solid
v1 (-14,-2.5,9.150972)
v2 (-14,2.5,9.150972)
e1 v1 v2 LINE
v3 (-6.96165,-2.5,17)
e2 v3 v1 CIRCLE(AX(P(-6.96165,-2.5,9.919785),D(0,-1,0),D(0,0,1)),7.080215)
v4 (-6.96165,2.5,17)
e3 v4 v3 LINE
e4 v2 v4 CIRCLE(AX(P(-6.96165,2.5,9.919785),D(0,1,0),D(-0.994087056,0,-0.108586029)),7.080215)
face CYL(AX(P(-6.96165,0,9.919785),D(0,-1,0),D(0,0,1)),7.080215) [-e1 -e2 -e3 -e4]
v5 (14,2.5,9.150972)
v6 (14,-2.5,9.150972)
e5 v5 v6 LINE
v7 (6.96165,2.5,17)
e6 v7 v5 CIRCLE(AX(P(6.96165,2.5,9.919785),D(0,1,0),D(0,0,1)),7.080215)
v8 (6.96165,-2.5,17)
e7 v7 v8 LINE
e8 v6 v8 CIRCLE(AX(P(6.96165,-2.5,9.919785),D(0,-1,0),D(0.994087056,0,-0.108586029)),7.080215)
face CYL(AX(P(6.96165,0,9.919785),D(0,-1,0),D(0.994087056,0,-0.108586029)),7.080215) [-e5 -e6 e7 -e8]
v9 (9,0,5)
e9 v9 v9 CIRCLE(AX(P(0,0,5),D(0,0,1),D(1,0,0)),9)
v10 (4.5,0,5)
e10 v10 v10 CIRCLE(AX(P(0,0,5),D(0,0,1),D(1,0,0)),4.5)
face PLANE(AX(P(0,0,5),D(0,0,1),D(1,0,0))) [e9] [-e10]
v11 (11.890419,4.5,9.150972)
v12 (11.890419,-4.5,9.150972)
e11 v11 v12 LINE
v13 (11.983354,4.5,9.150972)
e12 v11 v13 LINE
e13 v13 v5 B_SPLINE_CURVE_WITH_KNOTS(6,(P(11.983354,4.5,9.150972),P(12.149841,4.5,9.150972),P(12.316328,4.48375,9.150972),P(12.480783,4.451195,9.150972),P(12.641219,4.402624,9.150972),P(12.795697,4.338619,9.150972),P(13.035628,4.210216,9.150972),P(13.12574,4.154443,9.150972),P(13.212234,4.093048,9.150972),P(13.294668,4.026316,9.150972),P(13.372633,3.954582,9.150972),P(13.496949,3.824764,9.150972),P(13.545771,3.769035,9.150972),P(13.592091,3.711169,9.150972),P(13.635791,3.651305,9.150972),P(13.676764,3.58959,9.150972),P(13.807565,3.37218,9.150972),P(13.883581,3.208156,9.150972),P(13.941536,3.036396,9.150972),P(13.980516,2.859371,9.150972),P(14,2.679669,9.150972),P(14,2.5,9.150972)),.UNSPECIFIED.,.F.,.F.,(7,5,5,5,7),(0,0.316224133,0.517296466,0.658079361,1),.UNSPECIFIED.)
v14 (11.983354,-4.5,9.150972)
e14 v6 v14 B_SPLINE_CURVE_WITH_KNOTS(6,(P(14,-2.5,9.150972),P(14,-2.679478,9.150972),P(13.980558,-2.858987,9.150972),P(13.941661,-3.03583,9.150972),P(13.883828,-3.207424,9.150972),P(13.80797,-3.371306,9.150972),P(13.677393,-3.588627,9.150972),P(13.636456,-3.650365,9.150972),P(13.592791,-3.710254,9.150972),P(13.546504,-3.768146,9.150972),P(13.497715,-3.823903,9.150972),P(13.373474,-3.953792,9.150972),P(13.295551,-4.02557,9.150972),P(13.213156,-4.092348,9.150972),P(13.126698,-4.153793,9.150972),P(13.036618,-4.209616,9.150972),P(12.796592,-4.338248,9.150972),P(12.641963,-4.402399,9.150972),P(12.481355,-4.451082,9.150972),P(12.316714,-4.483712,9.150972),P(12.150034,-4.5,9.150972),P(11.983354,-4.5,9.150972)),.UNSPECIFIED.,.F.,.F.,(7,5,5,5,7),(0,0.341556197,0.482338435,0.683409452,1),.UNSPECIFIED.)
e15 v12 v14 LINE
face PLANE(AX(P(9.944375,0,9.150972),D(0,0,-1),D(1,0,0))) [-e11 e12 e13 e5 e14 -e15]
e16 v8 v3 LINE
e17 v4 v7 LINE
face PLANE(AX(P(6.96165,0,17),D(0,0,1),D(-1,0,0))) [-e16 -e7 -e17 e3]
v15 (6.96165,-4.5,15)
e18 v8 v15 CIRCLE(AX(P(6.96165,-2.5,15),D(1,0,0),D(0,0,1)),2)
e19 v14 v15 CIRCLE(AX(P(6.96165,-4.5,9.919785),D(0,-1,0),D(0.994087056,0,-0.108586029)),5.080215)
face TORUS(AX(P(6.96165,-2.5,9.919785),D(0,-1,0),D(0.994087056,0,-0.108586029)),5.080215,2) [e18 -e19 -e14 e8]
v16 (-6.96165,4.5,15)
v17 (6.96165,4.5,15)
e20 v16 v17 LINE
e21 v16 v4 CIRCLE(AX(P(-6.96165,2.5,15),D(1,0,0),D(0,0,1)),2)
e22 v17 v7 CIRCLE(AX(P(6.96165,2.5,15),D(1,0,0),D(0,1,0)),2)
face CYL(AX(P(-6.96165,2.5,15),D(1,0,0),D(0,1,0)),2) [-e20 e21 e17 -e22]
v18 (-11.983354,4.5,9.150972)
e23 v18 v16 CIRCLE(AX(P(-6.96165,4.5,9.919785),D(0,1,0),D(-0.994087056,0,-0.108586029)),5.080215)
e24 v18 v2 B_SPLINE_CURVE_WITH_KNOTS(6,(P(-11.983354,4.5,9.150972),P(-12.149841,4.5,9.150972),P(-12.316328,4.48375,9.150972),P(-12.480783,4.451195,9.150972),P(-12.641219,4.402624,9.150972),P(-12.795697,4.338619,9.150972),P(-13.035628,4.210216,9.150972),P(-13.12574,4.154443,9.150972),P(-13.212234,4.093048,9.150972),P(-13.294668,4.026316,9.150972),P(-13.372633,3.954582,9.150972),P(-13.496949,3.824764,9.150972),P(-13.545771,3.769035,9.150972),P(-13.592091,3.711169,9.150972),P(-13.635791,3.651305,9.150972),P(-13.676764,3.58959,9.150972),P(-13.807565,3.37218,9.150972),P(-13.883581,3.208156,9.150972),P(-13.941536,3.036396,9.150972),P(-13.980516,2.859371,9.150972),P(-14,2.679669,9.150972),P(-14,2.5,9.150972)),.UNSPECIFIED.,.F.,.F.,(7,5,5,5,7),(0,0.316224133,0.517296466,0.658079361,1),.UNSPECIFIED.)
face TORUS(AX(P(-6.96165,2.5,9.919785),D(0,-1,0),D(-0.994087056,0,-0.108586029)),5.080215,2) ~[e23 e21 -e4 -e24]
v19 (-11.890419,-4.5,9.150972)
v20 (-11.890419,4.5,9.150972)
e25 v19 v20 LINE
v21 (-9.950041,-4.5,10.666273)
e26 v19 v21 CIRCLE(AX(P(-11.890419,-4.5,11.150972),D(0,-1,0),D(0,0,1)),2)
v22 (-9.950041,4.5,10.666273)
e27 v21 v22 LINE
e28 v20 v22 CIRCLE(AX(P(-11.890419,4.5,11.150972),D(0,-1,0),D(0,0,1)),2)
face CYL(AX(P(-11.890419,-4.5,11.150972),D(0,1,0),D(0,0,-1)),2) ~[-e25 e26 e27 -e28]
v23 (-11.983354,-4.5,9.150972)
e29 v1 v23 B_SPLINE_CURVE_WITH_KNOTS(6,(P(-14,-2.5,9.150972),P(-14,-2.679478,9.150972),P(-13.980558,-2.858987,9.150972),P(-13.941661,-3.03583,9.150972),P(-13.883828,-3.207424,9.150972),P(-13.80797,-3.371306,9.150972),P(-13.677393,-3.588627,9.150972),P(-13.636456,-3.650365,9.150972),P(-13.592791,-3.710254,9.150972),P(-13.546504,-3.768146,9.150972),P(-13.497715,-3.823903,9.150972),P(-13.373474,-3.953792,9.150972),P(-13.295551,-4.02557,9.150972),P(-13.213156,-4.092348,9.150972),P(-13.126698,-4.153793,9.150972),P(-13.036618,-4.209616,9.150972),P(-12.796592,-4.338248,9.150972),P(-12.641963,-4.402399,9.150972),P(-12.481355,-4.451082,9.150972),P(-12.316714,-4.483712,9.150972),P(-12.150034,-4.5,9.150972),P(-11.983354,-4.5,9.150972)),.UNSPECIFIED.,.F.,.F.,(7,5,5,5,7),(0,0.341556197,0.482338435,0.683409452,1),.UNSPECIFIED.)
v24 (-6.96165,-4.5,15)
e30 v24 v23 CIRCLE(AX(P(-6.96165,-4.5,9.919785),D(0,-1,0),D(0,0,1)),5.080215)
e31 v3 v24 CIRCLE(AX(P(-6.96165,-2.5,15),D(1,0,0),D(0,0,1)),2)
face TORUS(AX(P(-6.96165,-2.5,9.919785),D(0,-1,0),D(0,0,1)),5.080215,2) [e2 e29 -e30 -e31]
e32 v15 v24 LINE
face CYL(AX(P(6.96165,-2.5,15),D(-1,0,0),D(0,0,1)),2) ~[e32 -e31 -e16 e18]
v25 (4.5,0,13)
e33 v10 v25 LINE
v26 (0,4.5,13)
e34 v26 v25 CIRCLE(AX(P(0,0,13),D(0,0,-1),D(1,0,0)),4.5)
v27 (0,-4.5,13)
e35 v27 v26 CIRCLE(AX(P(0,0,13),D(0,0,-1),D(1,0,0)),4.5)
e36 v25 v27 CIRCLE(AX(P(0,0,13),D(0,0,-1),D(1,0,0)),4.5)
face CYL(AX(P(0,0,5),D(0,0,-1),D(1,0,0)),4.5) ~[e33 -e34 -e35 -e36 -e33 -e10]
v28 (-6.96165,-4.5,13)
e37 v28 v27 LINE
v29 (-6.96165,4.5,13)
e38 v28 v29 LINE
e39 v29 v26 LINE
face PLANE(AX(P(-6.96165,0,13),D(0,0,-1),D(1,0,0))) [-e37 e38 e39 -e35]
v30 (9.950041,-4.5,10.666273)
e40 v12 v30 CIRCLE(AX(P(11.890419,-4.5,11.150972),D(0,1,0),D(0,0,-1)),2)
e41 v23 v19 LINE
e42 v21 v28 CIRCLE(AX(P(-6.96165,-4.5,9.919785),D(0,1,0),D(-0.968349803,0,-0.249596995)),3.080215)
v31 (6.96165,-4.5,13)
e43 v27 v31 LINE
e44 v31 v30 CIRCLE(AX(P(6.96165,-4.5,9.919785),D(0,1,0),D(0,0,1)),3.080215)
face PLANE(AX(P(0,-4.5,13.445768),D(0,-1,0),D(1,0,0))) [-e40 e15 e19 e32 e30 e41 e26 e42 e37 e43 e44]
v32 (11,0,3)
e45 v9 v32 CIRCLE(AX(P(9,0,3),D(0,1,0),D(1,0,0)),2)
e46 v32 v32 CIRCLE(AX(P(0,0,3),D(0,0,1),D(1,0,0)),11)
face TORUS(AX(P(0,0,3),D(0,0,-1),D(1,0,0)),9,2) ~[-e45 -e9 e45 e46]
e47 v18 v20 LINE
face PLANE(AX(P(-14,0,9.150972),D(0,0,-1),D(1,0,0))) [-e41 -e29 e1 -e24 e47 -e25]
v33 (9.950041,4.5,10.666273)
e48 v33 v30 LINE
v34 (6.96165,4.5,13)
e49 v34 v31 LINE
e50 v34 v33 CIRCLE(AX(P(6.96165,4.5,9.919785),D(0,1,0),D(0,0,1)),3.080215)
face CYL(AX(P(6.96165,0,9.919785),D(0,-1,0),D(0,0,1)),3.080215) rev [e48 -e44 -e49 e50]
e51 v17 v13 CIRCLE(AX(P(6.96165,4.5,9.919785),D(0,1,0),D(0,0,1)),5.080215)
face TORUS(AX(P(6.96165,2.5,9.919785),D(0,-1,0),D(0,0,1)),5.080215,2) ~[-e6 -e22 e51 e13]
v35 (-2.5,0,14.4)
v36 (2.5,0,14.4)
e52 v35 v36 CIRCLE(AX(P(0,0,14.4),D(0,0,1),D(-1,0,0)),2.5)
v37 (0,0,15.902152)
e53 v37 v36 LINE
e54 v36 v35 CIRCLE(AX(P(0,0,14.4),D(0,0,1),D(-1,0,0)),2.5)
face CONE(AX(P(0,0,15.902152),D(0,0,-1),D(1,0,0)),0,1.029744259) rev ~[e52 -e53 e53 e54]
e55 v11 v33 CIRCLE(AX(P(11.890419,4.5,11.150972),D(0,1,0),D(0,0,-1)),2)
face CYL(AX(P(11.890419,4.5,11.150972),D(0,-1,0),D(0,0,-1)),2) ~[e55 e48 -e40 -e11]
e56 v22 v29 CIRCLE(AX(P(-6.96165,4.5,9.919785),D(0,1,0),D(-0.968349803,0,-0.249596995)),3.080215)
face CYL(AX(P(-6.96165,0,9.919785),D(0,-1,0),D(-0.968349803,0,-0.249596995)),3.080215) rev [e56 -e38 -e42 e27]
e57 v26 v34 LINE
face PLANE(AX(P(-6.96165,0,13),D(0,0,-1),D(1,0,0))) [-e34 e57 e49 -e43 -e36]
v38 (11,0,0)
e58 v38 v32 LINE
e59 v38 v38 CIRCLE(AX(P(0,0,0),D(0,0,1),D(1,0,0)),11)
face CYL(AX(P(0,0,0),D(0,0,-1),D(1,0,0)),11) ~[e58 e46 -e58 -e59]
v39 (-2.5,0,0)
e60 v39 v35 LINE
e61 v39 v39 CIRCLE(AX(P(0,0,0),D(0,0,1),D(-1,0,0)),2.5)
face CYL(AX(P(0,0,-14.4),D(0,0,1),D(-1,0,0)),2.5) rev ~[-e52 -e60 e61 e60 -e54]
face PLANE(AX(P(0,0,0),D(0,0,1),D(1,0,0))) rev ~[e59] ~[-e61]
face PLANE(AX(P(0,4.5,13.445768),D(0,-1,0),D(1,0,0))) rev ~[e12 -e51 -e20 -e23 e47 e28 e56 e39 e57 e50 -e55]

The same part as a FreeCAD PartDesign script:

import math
import FreeCAD as App
import Part
import Sketcher
from FreeCAD import Vector


def edges_at(feature, points):
    """Names of the edges that pass closest to the given points."""
    edges = feature.Shape.Edges
    near = lambda p: min(range(len(edges)), key=lambda i: edges[i].distToShape(Part.Vertex(*p))[0])
    return sorted({f"Edge{near(p) + 1}" for p in points})

doc = App.newDocument("Part")
params = doc.addObject("Spreadsheet::Sheet", "Params")
for row, (alias, value) in enumerate([
    ("sketch1_diameter", "22 mm"),
    ("pad1_length", "5 mm"),
    ("sketch2_diameter", "9 mm"),
    ("pad2_length", "12 mm"),
    ("pad3_length", "9 mm"),
    ("fillet_radius", "2 mm"),
    ("sketch4_diameter", "5 mm"),
    ("hole_diameter", "5 mm"),
    ("hole_depth", "14.4 mm"),
], start=1):
    params.set(f"A{row}", alias)
    params.set(f"B{row}", "=" + value)
    params.setAlias(f"B{row}", alias)

body = doc.addObject("PartDesign::Body", "Body")

# Sketch on XY plane
sketch1 = body.newObject("Sketcher::SketchObject", "Sketch")
sketch1.AttachmentSupport = (doc.getObject("XY_Plane"), [""])
sketch1.MapMode = "FlatFace"
sketch1.addGeometry(Part.Circle(Vector(0, 0, 0), Vector(0, 0, 1), 11), False)
sketch1.addConstraint(Sketcher.Constraint("Coincident", 0, 3, -1, 1))
sketch1.addConstraint(Sketcher.Constraint("Diameter", 0, 22.0))
sketch1.setExpression("Constraints[1]", "Params.sketch1_diameter")
pad1 = body.newObject("PartDesign::Pad", "Pad")
pad1.Profile = sketch1
pad1.setExpression("Length", "Params.pad1_length")

# Sketch on XY plane
sketch2 = body.newObject("Sketcher::SketchObject", "Sketch001")
sketch2.AttachmentSupport = (doc.getObject("XY_Plane"), [""])
sketch2.MapMode = "FlatFace"
sketch2.AttachmentOffset = App.Placement(Vector(0, 0, 5), App.Rotation())
sketch2.addGeometry(Part.Circle(Vector(0, 0, 0), Vector(0, 0, 1), 4.5), False)
sketch2.addConstraint(Sketcher.Constraint("Coincident", 0, 3, -1, 1))
sketch2.addConstraint(Sketcher.Constraint("Diameter", 0, 9.0))
sketch2.setExpression("Constraints[1]", "Params.sketch2_diameter")
pad2 = body.newObject("PartDesign::Pad", "Pad001")
pad2.Profile = sketch2
pad2.setExpression("Length", "Params.pad2_length")

# Sketch on XZ plane
sketch3 = body.newObject("Sketcher::SketchObject", "Sketch002")
sketch3.AttachmentSupport = (doc.getObject("XZ_Plane"), [""])
sketch3.MapMode = "FlatFace"
sketch3.addGeometry(Part.LineSegment(Vector(-6.96165, 13, 0), Vector(6.96165, 13, 0)), False)
sketch3.addGeometry(Part.ArcOfCircle(Part.Circle(Vector(6.96165, 9.919785, 0), Vector(0, 0, 1), 3.080215), math.radians(-14.453666), math.radians(90)), False)
sketch3.addGeometry(Part.LineSegment(Vector(9.944375, 9.150972, 0), Vector(14, 9.150972, 0)), False)
sketch3.addGeometry(Part.ArcOfCircle(Part.Circle(Vector(6.96165, 9.919785, 0), Vector(0, 0, 1), 7.080215), math.radians(-6.233813), math.radians(90)), False)
sketch3.addGeometry(Part.LineSegment(Vector(6.96165, 17, 0), Vector(-6.96165, 17, 0)), False)
sketch3.addGeometry(Part.ArcOfCircle(Part.Circle(Vector(-6.96165, 9.919785, 0), Vector(0, 0, 1), 7.080215), math.radians(90), math.radians(186.233813)), False)
sketch3.addGeometry(Part.LineSegment(Vector(-14, 9.150972, 0), Vector(-9.944375, 9.150972, 0)), False)
sketch3.addGeometry(Part.ArcOfCircle(Part.Circle(Vector(-6.96165, 9.919785, 0), Vector(0, 0, 1), 3.080215), math.radians(90), math.radians(194.453666)), False)
sketch3.addConstraint(Sketcher.Constraint("Tangent", 0, 2, 1, 2))
sketch3.addConstraint(Sketcher.Constraint("Coincident", 1, 1, 2, 1))
sketch3.addConstraint(Sketcher.Constraint("Coincident", 2, 2, 3, 1))
sketch3.addConstraint(Sketcher.Constraint("Tangent", 3, 2, 4, 1))
sketch3.addConstraint(Sketcher.Constraint("Tangent", 4, 2, 5, 1))
sketch3.addConstraint(Sketcher.Constraint("Coincident", 5, 2, 6, 1))
sketch3.addConstraint(Sketcher.Constraint("Coincident", 6, 2, 7, 2))
sketch3.addConstraint(Sketcher.Constraint("Tangent", 7, 1, 0, 1))
sketch3.addConstraint(Sketcher.Constraint("Horizontal", 0))
sketch3.addConstraint(Sketcher.Constraint("Horizontal", 2))
sketch3.addConstraint(Sketcher.Constraint("Horizontal", 4))
sketch3.addConstraint(Sketcher.Constraint("Horizontal", 6))
sketch3.addConstraint(Sketcher.Constraint("Coincident", 3, 3, 1, 3))
sketch3.addConstraint(Sketcher.Constraint("Coincident", 7, 3, 5, 3))
sketch3.addConstraint(Sketcher.Constraint("Equal", 3, 5))
sketch3.addConstraint(Sketcher.Constraint("Symmetric", 2, 2, 5, 2, -2))
sketch3.addConstraint(Sketcher.Constraint("DistanceY", -1, 1, 0, 2, 13.0))
sketch3.addConstraint(Sketcher.Constraint("DistanceX", -1, 1, 2, 2, 14.0))
sketch3.addConstraint(Sketcher.Constraint("DistanceY", -1, 1, 3, 2, 17.0))
sketch3.addConstraint(Sketcher.Constraint("DistanceX", 0, 1, 0, 2, 13.923299))
sketch3.addConstraint(Sketcher.Constraint("Radius", 1, 3.080215))
pad3 = body.newObject("PartDesign::Pad", "Pad002")
pad3.Profile = sketch3
pad3.setExpression("Length", "Params.pad3_length")
pad3.Midplane = True
doc.recompute()

fillet = body.newObject("PartDesign::Fillet", "Fillet")
fillet.Base = (pad3, edges_at(pad3, [
    (-11, 0, 5),
    (0, -4.5, 17),
    (0, 4.5, 17),
    (-9.944, 0, 9.151),
    (9.944, 0, 9.151),
]))
fillet.setExpression("Radius", "Params.fillet_radius")

# Sketch on XY plane
sketch4 = body.newObject("Sketcher::SketchObject", "Sketch003")
sketch4.AttachmentSupport = (doc.getObject("XY_Plane"), [""])
sketch4.MapMode = "FlatFace"
sketch4.addGeometry(Part.Circle(Vector(0, 0, 0), Vector(0, 0, 1), 2.5), False)
sketch4.addConstraint(Sketcher.Constraint("Coincident", 0, 3, -1, 1))
sketch4.addConstraint(Sketcher.Constraint("Diameter", 0, 5.0))
sketch4.setExpression("Constraints[1]", "Params.sketch4_diameter")
doc.recompute()
hole = body.newObject("PartDesign::Hole", "Hole")
hole.Profile = sketch4
hole.ThreadType = "None"
hole.setExpression("Diameter", "Params.hole_diameter")
hole.DepthType = "Dimension"
hole.setExpression("Depth", "Params.hole_depth")
hole.DrillPoint = "Angled"
hole.DrillPointAngle = 118
hole.Reversed = True

doc.recompute()
